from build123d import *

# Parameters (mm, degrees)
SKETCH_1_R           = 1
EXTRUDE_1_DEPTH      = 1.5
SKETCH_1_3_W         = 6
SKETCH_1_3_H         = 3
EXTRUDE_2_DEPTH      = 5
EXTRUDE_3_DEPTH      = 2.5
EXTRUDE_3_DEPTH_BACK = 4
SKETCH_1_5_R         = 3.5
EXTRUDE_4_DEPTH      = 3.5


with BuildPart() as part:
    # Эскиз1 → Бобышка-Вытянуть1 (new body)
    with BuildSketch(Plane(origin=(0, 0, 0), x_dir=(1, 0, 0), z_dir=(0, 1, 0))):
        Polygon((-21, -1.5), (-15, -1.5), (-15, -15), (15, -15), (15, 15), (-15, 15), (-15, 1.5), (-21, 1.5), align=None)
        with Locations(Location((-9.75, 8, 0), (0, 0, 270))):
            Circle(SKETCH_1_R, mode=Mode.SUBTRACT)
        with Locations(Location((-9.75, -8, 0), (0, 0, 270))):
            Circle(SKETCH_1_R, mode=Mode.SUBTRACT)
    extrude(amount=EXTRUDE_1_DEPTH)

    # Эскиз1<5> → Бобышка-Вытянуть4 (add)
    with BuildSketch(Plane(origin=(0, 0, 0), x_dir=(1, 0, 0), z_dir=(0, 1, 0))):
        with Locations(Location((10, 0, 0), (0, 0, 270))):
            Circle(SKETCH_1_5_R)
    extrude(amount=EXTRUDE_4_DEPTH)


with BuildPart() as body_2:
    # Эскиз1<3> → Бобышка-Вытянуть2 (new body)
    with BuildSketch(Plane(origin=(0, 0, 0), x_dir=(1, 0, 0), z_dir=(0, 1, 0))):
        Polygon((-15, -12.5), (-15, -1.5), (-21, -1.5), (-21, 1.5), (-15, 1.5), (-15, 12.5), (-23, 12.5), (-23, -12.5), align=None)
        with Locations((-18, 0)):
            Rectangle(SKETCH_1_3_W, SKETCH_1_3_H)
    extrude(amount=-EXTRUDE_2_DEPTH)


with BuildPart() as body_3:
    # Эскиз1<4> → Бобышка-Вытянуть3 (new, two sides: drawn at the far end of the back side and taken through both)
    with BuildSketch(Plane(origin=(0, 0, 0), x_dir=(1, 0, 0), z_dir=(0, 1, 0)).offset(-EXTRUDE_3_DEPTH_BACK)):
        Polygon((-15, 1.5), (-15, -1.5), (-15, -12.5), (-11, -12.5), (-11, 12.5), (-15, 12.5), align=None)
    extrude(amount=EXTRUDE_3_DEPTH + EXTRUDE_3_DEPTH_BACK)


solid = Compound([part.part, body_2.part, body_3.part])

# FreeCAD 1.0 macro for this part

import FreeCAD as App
import Part
import Sketcher
Q = App.Units.Quantity


def add_polygon(sketch, points):
    """Adds a closed chain of lines whose ends are joined by coincident constraints."""
    first, n = sketch.GeometryCount, len(points)
    for a, b in zip(points, points[1:] + points[:1]):
        sketch.addGeometry(Part.LineSegment(App.Vector(*a, 0), App.Vector(*b, 0)), False)
    for i in range(n):
        sketch.addConstraint(Sketcher.Constraint("Coincident", first + i, 2, first + (i + 1) % n, 1))

doc = App.newDocument("Part")
body = doc.addObject("PartDesign::Body", "Body")

# Sketch on XZ plane
sketch1 = body.newObject("Sketcher::SketchObject", "Sketch")
sketch1.AttachmentSupport = (doc.getObject("XZ_Plane"), [""])
sketch1.MapMode = "FlatFace"
add_polygon(sketch1, [(-21, 1.5), (-15, 1.5), (-15, 15), (15, 15), (15, -15), (-15, -15), (-15, -1.5), (-21, -1.5)])  # lines 0-7
sketch1.addGeometry(Part.Circle(App.Vector(-9.8, 8, 0), App.Vector(0, 0, 1), 1), False)  # 8
sketch1.addGeometry(Part.Circle(App.Vector(-9.8, -8, 0), App.Vector(0, 0, 1), 1), False)  # 9
sketch1.addConstraint([
    Sketcher.Constraint("Horizontal", 0),
    Sketcher.Constraint("Vertical", 1),
    Sketcher.Constraint("Horizontal", 2),
    Sketcher.Constraint("Vertical", 3),
    Sketcher.Constraint("Horizontal", 4),
    Sketcher.Constraint("Vertical", 5),
    Sketcher.Constraint("Horizontal", 6),
    Sketcher.Constraint("Vertical", 7),
    Sketcher.Constraint("Equal", 8, 9),
    Sketcher.Constraint("Symmetric", 1, 2, 3, 2, -1, 1),
    Sketcher.Constraint("Symmetric", 8, 3, 9, 3, -1),
    Sketcher.Constraint("Symmetric", 0, 2, 5, 2, -1),
    Sketcher.Constraint("Equal", 4, 3),
    Sketcher.Constraint("Diameter", 8, Q("2 mm")),
    Sketcher.Constraint("DistanceX", 0, 1, 0, 2, Q("6 mm")),
    Sketcher.Constraint("DistanceX", 2, 1, 2, 2, Q("30 mm")),
    Sketcher.Constraint("DistanceY", 7, 1, 7, 2, Q("3 mm")),
    Sketcher.Constraint("DistanceY", -1, 1, 8, 3, Q("8 mm")),
    Sketcher.Constraint("DistanceX", 8, 3, -1, 1, Q("9.75 mm")),
])
pad1 = body.newObject("PartDesign::Pad", "Pad")
pad1.Profile = sketch1
pad1.Length = 1.5
pad1.Reversed = True

# Sketch on XZ plane
sketch2 = body.newObject("Sketcher::SketchObject", "Sketch001")
sketch2.AttachmentSupport = (doc.getObject("XZ_Plane"), [""])
sketch2.MapMode = "FlatFace"
sketch2.addGeometry(Part.Circle(App.Vector(10, 0, 0), App.Vector(0, 0, 1), 3.5), False)
sketch2.addConstraint([
    Sketcher.Constraint("PointOnObject", 0, 3, -1),
    Sketcher.Constraint("Diameter", 0, Q("7 mm")),
    Sketcher.Constraint("DistanceX", -1, 1, 0, 3, Q("10 mm")),
])
pad2 = body.newObject("PartDesign::Pad", "Pad001")
pad2.Profile = sketch2
pad2.Length = 3.5
pad2.Reversed = True
body2 = doc.addObject("PartDesign::Body", "Body001")

# Sketch on XZ plane
sketch3 = body2.newObject("Sketcher::SketchObject", "Sketch002")
sketch3.AttachmentSupport = (doc.getObject("XZ_Plane001"), [""])
sketch3.MapMode = "FlatFace"
add_polygon(sketch3, [(-15, 12), (-15, -12), (-23, -12), (-23, 12)])  # lines 0-3
sketch3.addConstraint([
    Sketcher.Constraint("Vertical", 0),
    Sketcher.Constraint("Horizontal", 1),
    Sketcher.Constraint("Vertical", 2),
    Sketcher.Constraint("Horizontal", 3),
    Sketcher.Constraint("DistanceX", 1, 2, 1, 1, Q("8 mm")),
    Sketcher.Constraint("DistanceY", 0, 2, 0, 1, Q("25 mm")),
    Sketcher.Constraint("DistanceX", 0, 2, -1, 1, Q("15 mm")),
    Sketcher.Constraint("DistanceY", 0, 2, -1, 1, Q("12.5 mm")),
])
pad3 = body2.newObject("PartDesign::Pad", "Pad002")
pad3.Profile = sketch3
pad3.Length = 5
body3 = doc.addObject("PartDesign::Body", "Body002")

# Sketch on XZ plane
sketch4 = body3.newObject("Sketcher::SketchObject", "Sketch003")
sketch4.AttachmentSupport = (doc.getObject("XZ_Plane002"), [""])
sketch4.MapMode = "FlatFace"
add_polygon(sketch4, [(-15, 12.5), (-11, 12.5), (-11, -12.5), (-15, -12.5)])  # lines 0-3
sketch4.addConstraint([
    Sketcher.Constraint("Horizontal", 0),
    Sketcher.Constraint("Vertical", 1),
    Sketcher.Constraint("Horizontal", 2),
    Sketcher.Constraint("Vertical", 3),
    Sketcher.Constraint("DistanceX", 0, 1, 0, 2, Q("4 mm")),
    Sketcher.Constraint("DistanceY", 1, 2, 1, 1, Q("25 mm")),
    Sketcher.Constraint("DistanceX", 0, 2, -1, 1, Q("11 mm")),
    Sketcher.Constraint("DistanceY", -1, 1, 0, 2, Q("12.5 mm")),
])
pad4 = body3.newObject("PartDesign::Pad", "Pad003")
pad4.Profile = sketch4
pad4.Type = "TwoLengths"
pad4.Length = 2.5
pad4.Length2 = 4
pad4.Reversed = True

doc.recompute()
